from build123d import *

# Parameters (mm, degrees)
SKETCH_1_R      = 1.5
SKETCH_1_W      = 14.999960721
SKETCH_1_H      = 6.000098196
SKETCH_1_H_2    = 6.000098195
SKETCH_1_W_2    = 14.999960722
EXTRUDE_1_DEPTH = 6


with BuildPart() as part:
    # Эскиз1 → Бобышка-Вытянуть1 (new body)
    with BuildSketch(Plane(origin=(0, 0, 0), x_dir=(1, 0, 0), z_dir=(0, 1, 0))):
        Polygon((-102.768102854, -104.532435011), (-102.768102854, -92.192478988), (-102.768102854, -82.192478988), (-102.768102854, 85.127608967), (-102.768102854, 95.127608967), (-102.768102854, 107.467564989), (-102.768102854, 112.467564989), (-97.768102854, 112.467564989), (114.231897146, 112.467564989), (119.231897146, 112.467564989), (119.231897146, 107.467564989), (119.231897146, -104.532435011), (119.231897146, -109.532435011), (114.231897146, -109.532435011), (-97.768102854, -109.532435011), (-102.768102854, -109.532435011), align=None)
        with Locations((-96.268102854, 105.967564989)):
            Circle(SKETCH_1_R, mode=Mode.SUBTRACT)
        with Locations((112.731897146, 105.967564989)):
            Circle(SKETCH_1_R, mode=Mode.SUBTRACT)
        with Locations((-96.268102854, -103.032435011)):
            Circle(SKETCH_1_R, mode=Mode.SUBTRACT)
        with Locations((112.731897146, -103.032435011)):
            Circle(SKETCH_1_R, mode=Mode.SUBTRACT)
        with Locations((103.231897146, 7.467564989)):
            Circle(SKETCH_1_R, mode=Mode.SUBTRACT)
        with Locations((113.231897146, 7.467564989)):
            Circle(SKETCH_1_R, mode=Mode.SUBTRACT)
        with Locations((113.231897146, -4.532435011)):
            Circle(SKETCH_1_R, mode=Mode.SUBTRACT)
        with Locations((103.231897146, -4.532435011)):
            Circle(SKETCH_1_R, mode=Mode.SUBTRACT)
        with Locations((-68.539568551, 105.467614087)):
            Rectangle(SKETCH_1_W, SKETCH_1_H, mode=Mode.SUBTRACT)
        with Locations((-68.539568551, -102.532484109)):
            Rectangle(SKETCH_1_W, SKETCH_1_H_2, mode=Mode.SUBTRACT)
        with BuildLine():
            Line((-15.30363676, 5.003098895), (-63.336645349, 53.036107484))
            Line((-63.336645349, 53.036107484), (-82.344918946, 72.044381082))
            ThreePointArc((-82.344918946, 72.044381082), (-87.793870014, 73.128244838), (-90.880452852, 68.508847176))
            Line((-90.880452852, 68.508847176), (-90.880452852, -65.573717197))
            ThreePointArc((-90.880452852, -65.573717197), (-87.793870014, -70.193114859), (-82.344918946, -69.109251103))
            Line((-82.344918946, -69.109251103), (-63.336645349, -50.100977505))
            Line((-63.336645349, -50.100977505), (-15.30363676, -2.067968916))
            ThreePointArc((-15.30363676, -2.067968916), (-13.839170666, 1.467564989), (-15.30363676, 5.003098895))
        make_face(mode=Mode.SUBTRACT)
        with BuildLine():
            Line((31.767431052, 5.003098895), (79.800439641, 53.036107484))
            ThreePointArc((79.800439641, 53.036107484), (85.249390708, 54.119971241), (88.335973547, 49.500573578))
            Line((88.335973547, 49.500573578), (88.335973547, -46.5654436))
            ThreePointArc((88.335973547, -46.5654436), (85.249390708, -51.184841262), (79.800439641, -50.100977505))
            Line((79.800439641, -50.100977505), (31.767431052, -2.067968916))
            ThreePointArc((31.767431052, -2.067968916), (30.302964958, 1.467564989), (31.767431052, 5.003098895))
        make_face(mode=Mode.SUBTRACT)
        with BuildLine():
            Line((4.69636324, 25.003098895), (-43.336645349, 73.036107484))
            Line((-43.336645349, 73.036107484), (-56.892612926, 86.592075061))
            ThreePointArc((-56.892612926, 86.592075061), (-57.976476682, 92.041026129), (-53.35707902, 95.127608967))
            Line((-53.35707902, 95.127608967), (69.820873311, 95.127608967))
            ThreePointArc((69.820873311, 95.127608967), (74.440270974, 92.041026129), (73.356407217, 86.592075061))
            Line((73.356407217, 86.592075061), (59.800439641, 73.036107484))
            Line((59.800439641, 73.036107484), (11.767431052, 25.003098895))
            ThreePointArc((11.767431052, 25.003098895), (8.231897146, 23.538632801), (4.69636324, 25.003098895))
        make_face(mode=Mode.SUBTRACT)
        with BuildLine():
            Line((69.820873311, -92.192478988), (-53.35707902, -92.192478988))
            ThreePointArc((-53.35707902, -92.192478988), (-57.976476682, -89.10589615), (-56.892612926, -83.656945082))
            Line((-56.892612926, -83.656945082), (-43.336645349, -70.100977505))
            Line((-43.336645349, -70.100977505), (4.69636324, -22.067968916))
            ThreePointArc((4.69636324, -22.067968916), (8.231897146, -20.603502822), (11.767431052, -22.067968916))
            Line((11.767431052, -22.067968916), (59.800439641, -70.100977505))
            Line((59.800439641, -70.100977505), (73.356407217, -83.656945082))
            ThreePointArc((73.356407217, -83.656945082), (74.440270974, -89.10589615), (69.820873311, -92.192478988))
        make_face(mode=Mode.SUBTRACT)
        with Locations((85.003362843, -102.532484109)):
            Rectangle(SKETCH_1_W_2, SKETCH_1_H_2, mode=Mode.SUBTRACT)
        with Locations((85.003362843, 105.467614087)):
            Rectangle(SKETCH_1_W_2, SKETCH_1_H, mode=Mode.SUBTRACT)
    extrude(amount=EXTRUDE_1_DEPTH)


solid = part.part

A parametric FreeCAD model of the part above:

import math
import FreeCAD as App
import Part
import Sketcher
Q = App.Units.Quantity


def add_polygon(sketch, points):
    """Adds a closed chain of lines whose ends are joined by coincident constraints."""
    first, n = sketch.GeometryCount, len(points)
    for a, b in zip(points, points[1:] + points[:1]):
        sketch.addGeometry(Part.LineSegment(App.Vector(*a, 0), App.Vector(*b, 0)), False)
    for i in range(n):
        sketch.addConstraint(Sketcher.Constraint("Coincident", first + i, 2, first + (i + 1) % n, 1))

doc = App.newDocument("Part")
body = doc.addObject("PartDesign::Body", "Body")

# Sketch on XZ plane
sketch1 = doc.addObject("Sketcher::SketchObject", "Sketch")
body.addObject(sketch1)
sketch1.AttachmentSupport = (doc.XZ_Plane, [""])
sketch1.MapMode = "FlatFace"
add_polygon(sketch1, [(-102.8, -112.5), (-102.8, 109.5), (119.2, 109.5), (119.2, -112.5)])  # lines 0-3
sketch1.addGeometry(Part.Circle(App.Vector(112.7, 103, 0), App.Vector(0, 0, 1), 1.5), False)  # 4
add_polygon(sketch1, [(77.5, 105.5), (77.5, 99.5), (92.5, 99.5), (92.5, 105.5)])  # lines 5-8
sketch1.addGeometry(Part.Circle(App.Vector(113.2, 4.5, 0), App.Vector(0, 0, 1), 1.5), False)  # 9
sketch1.addGeometry(Part.Circle(App.Vector(103.2, 4.5, 0), App.Vector(0, 0, 1), 1.5), False)  # 10
sketch1.addGeometry(Part.LineSegment(App.Vector(69.8, 92.2, 0), App.Vector(-53.4, 92.2, 0)), False)  # 11
sketch1.addGeometry(Part.ArcOfCircle(Part.Circle(App.Vector(-53.4, 87.2, 0), App.Vector(0, 0, 1), 5), math.radians(90), math.radians(225)), False)  # 12
sketch1.addGeometry(Part.LineSegment(App.Vector(-56.9, 83.7, 0), App.Vector(4.7, 22.1, 0)), False)  # 13
sketch1.addGeometry(Part.ArcOfCircle(Part.Circle(App.Vector(8.2, 25.6, 0), App.Vector(0, 0, 1), 5), math.radians(-135), math.radians(-45)), False)  # 14
sketch1.addGeometry(Part.LineSegment(App.Vector(11.8, 22.1, 0), App.Vector(59.8, 70.1, 0)), False)  # 15
sketch1.addGeometry(Part.LineSegment(App.Vector(59.8, 70.1, 0), App.Vector(73.4, 83.7, 0)), False)  # 16
sketch1.addGeometry(Part.ArcOfCircle(Part.Circle(App.Vector(69.8, 87.2, 0), App.Vector(0, 0, 1), 5), math.radians(-45), math.radians(90)), False)  # 17
add_polygon(sketch1, [(-76, 105.5), (-76, 99.5), (-61, 99.5), (-61, 105.5)])  # lines 18-21
sketch1.addGeometry(Part.Circle(App.Vector(-96.3, 103, 0), App.Vector(0, 0, 1), 1.5), False)  # 22
sketch1.addGeometry(Part.Circle(App.Vector(113.2, -7.5, 0), App.Vector(0, 0, 1), 1.5), False)  # 23
sketch1.addGeometry(Part.Circle(App.Vector(103.2, -7.5, 0), App.Vector(0, 0, 1), 1.5), False)  # 24
sketch1.addGeometry(Part.LineSegment(App.Vector(31.8, -5, 0), App.Vector(79.8, -53, 0)), False)  # 25
sketch1.addGeometry(Part.ArcOfCircle(Part.Circle(App.Vector(83.3, -49.5, 0), App.Vector(0, 0, 1), 5), math.radians(-135), math.radians(0)), False)  # 26
sketch1.addGeometry(Part.LineSegment(App.Vector(88.3, -49.5, 0), App.Vector(88.3, 46.6, 0)), False)  # 27
sketch1.addGeometry(Part.ArcOfCircle(Part.Circle(App.Vector(83.3, 46.6, 0), App.Vector(0, 0, 1), 5), math.radians(0), math.radians(135)), False)  # 28
sketch1.addGeometry(Part.LineSegment(App.Vector(79.8, 50.1, 0), App.Vector(31.8, 2.1, 0)), False)  # 29
sketch1.addGeometry(Part.ArcOfCircle(Part.Circle(App.Vector(35.3, -1.5, 0), App.Vector(0, 0, 1), 5), math.radians(135), math.radians(225)), False)  # 30
sketch1.addGeometry(Part.Circle(App.Vector(112.7, -106, 0), App.Vector(0, 0, 1), 1.5), False)  # 31
add_polygon(sketch1, [(77.5, -102.5), (77.5, -108.5), (92.5, -108.5), (92.5, -102.5)])  # lines 32-35
sketch1.addGeometry(Part.ArcOfCircle(Part.Circle(App.Vector(-18.8, -1.5, 0), App.Vector(0, 0, 1), 5), math.radians(-45), math.radians(45)), False)  # 36
sketch1.addGeometry(Part.LineSegment(App.Vector(-15.3, 2.1, 0), App.Vector(-63.3, 50.1, 0)), False)  # 37
sketch1.addGeometry(Part.LineSegment(App.Vector(-63.3, 50.1, 0), App.Vector(-82.3, 69.1, 0)), False)  # 38
sketch1.addGeometry(Part.ArcOfCircle(Part.Circle(App.Vector(-85.9, 65.6, 0), App.Vector(0, 0, 1), 5), math.radians(45), math.radians(180)), False)  # 39
sketch1.addGeometry(Part.LineSegment(App.Vector(-90.9, 65.6, 0), App.Vector(-90.9, -68.5, 0)), False)  # 40
sketch1.addGeometry(Part.ArcOfCircle(Part.Circle(App.Vector(-85.9, -68.5, 0), App.Vector(0, 0, 1), 5), math.radians(-180), math.radians(-45)), False)  # 41
sketch1.addGeometry(Part.LineSegment(App.Vector(-82.3, -72, 0), App.Vector(-63.3, -53, 0)), False)  # 42
sketch1.addGeometry(Part.LineSegment(App.Vector(-63.3, -53, 0), App.Vector(-15.3, -5, 0)), False)  # 43
sketch1.addGeometry(Part.LineSegment(App.Vector(4.7, -25, 0), App.Vector(-56.9, -86.6, 0)), False)  # 44
sketch1.addGeometry(Part.ArcOfCircle(Part.Circle(App.Vector(-53.4, -90.1, 0), App.Vector(0, 0, 1), 5), math.radians(135), math.radians(270)), False)  # 45
sketch1.addGeometry(Part.LineSegment(App.Vector(-53.4, -95.1, 0), App.Vector(69.8, -95.1, 0)), False)  # 46
sketch1.addGeometry(Part.ArcOfCircle(Part.Circle(App.Vector(69.8, -90.1, 0), App.Vector(0, 0, 1), 5), math.radians(-90), math.radians(45)), False)  # 47
sketch1.addGeometry(Part.LineSegment(App.Vector(73.4, -86.6, 0), App.Vector(59.8, -73, 0)), False)  # 48
sketch1.addGeometry(Part.LineSegment(App.Vector(59.8, -73, 0), App.Vector(11.8, -25, 0)), False)  # 49
sketch1.addGeometry(Part.ArcOfCircle(Part.Circle(App.Vector(8.2, -28.5, 0), App.Vector(0, 0, 1), 5), math.radians(45), math.radians(135)), False)  # 50
add_polygon(sketch1, [(-76, -102.5), (-76, -108.5), (-61, -108.5), (-61, -102.5)])  # lines 51-54
sketch1.addGeometry(Part.Circle(App.Vector(-96.3, -106, 0), App.Vector(0, 0, 1), 1.5), False)  # 55
sketch1.addConstraint(Sketcher.Constraint("Tangent", 11, 2, 12, 1))
sketch1.addConstraint(Sketcher.Constraint("Tangent", 12, 2, 13, 1))
sketch1.addConstraint(Sketcher.Constraint("Tangent", 13, 2, 14, 1))
sketch1.addConstraint(Sketcher.Constraint("Tangent", 14, 2, 15, 1))
sketch1.addConstraint(Sketcher.Constraint("Coincident", 15, 2, 16, 1))
sketch1.addConstraint(Sketcher.Constraint("Tangent", 16, 2, 17, 1))
sketch1.addConstraint(Sketcher.Constraint("Tangent", 17, 2, 11, 1))
sketch1.addConstraint(Sketcher.Constraint("Tangent", 25, 2, 26, 1))
sketch1.addConstraint(Sketcher.Constraint("Tangent", 26, 2, 27, 1))
sketch1.addConstraint(Sketcher.Constraint("Tangent", 27, 2, 28, 1))
sketch1.addConstraint(Sketcher.Constraint("Tangent", 28, 2, 29, 1))
sketch1.addConstraint(Sketcher.Constraint("Tangent", 29, 2, 30, 1))
sketch1.addConstraint(Sketcher.Constraint("Tangent", 30, 2, 25, 1))
sketch1.addConstraint(Sketcher.Constraint("Tangent", 36, 2, 37, 1))
sketch1.addConstraint(Sketcher.Constraint("Coincident", 37, 2, 38, 1))
sketch1.addConstraint(Sketcher.Constraint("Tangent", 38, 2, 39, 1))
sketch1.addConstraint(Sketcher.Constraint("Tangent", 39, 2, 40, 1))
sketch1.addConstraint(Sketcher.Constraint("Tangent", 40, 2, 41, 1))
sketch1.addConstraint(Sketcher.Constraint("Tangent", 41, 2, 42, 1))
sketch1.addConstraint(Sketcher.Constraint("Coincident", 42, 2, 43, 1))
sketch1.addConstraint(Sketcher.Constraint("Tangent", 43, 2, 36, 1))
sketch1.addConstraint(Sketcher.Constraint("Tangent", 44, 2, 45, 1))
sketch1.addConstraint(Sketcher.Constraint("Tangent", 45, 2, 46, 1))
sketch1.addConstraint(Sketcher.Constraint("Tangent", 46, 2, 47, 1))
sketch1.addConstraint(Sketcher.Constraint("Tangent", 47, 2, 48, 1))
sketch1.addConstraint(Sketcher.Constraint("Coincident", 48, 2, 49, 1))
sketch1.addConstraint(Sketcher.Constraint("Tangent", 49, 2, 50, 1))
sketch1.addConstraint(Sketcher.Constraint("Tangent", 50, 2, 44, 1))
sketch1.addConstraint(Sketcher.Constraint("Vertical", 0))
sketch1.addConstraint(Sketcher.Constraint("Horizontal", 1))
sketch1.addConstraint(Sketcher.Constraint("Vertical", 2))
sketch1.addConstraint(Sketcher.Constraint("Horizontal", 3))
sketch1.addConstraint(Sketcher.Constraint("Vertical", 5))
sketch1.addConstraint(Sketcher.Constraint("Horizontal", 6))
sketch1.addConstraint(Sketcher.Constraint("Vertical", 7))
sketch1.addConstraint(Sketcher.Constraint("Horizontal", 8))
sketch1.addConstraint(Sketcher.Constraint("Horizontal", 11))
sketch1.addConstraint(Sketcher.Constraint("Vertical", 18))
sketch1.addConstraint(Sketcher.Constraint("Horizontal", 19))
sketch1.addConstraint(Sketcher.Constraint("Vertical", 20))
sketch1.addConstraint(Sketcher.Constraint("Horizontal", 21))
sketch1.addConstraint(Sketcher.Constraint("Vertical", 27))
sketch1.addConstraint(Sketcher.Constraint("Vertical", 32))
sketch1.addConstraint(Sketcher.Constraint("Horizontal", 33))
sketch1.addConstraint(Sketcher.Constraint("Vertical", 34))
sketch1.addConstraint(Sketcher.Constraint("Horizontal", 35))
sketch1.addConstraint(Sketcher.Constraint("Vertical", 40))
sketch1.addConstraint(Sketcher.Constraint("Horizontal", 46))
sketch1.addConstraint(Sketcher.Constraint("Vertical", 51))
sketch1.addConstraint(Sketcher.Constraint("Horizontal", 52))
sketch1.addConstraint(Sketcher.Constraint("Vertical", 53))
sketch1.addConstraint(Sketcher.Constraint("Horizontal", 54))
sketch1.addConstraint(Sketcher.Constraint("Equal", 4, 9))
sketch1.addConstraint(Sketcher.Constraint("Equal", 9, 10))
sketch1.addConstraint(Sketcher.Constraint("Equal", 12, 14))
sketch1.addConstraint(Sketcher.Constraint("Equal", 14, 17))
sketch1.addConstraint(Sketcher.Constraint("Equal", 10, 22))
sketch1.addConstraint(Sketcher.Constraint("Equal", 22, 23))
sketch1.addConstraint(Sketcher.Constraint("Equal", 23, 24))
sketch1.addConstraint(Sketcher.Constraint("Equal", 17, 26))
sketch1.addConstraint(Sketcher.Constraint("Equal", 26, 28))
sketch1.addConstraint(Sketcher.Constraint("Equal", 28, 30))
sketch1.addConstraint(Sketcher.Constraint("Equal", 24, 31))
sketch1.addConstraint(Sketcher.Constraint("Equal", 30, 36))
sketch1.addConstraint(Sketcher.Constraint("Equal", 36, 39))
sketch1.addConstraint(Sketcher.Constraint("Equal", 39, 41))
sketch1.addConstraint(Sketcher.Constraint("Equal", 41, 45))
sketch1.addConstraint(Sketcher.Constraint("Equal", 45, 47))
sketch1.addConstraint(Sketcher.Constraint("Equal", 47, 50))
sketch1.addConstraint(Sketcher.Constraint("Equal", 31, 55))
sketch1.addConstraint(Sketcher.Constraint("Perpendicular", 13, 15))
sketch1.addConstraint(Sketcher.Constraint("Parallel", 15, 16))
sketch1.addConstraint(Sketcher.Constraint("Perpendicular", 16, 25))
sketch1.addConstraint(Sketcher.Constraint("Perpendicular", 25, 29))
sketch1.addConstraint(Sketcher.Constraint("Perpendicular", 29, 37))
sketch1.addConstraint(Sketcher.Constraint("Parallel", 37, 38))
sketch1.addConstraint(Sketcher.Constraint("Perpendicular", 38, 42))
sketch1.addConstraint(Sketcher.Constraint("Parallel", 42, 43))
sketch1.addConstraint(Sketcher.Constraint("Parallel", 43, 44))
sketch1.addConstraint(Sketcher.Constraint("Perpendicular", 44, 48))
sketch1.addConstraint(Sketcher.Constraint("Parallel", 48, 49))
sketch1.addConstraint(Sketcher.Constraint("Horizontal", 9, 3, 10, 3))
sketch1.addConstraint(Sketcher.Constraint("Horizontal", 4, 3, 22, 3))
sketch1.addConstraint(Sketcher.Constraint("Horizontal", 23, 3, 24, 3))
sketch1.addConstraint(Sketcher.Constraint("Horizontal", 30, 3, 36, 3))
sketch1.addConstraint(Sketcher.Constraint("Horizontal", 31, 3, 55, 3))
sketch1.addConstraint(Sketcher.Constraint("Horizontal", 13, 2, 14, 2))
sketch1.addConstraint(Sketcher.Constraint("Horizontal", 6, 2, 18, 2))
sketch1.addConstraint(Sketcher.Constraint("Horizontal", 8, 2, 20, 2))
sketch1.addConstraint(Sketcher.Constraint("Horizontal", 28, 2, 37, 2))
sketch1.addConstraint(Sketcher.Constraint("Horizontal", 25, 2, 42, 2))
sketch1.addConstraint(Sketcher.Constraint("Horizontal", 33, 2, 51, 2))
sketch1.addConstraint(Sketcher.Constraint("Horizontal", 35, 2, 53, 2))
sketch1.addConstraint(Sketcher.Constraint("Vertical", 9, 3, 23, 3))
sketch1.addConstraint(Sketcher.Constraint("Vertical", 10, 3, 24, 3))
sketch1.addConstraint(Sketcher.Constraint("Vertical", 4, 3, 31, 3))
sketch1.addConstraint(Sketcher.Constraint("Vertical", 12, 3, 45, 3))
sketch1.addConstraint(Sketcher.Constraint("Vertical", 17, 3, 47, 3))
sketch1.addConstraint(Sketcher.Constraint("Vertical", 22, 3, 55, 3))
sketch1.addConstraint(Sketcher.Constraint("Vertical", 8, 2, 32, 2))
sketch1.addConstraint(Sketcher.Constraint("Vertical", 7, 2, 33, 2))
sketch1.addConstraint(Sketcher.Constraint("Vertical", 15, 2, 48, 2))
sketch1.addConstraint(Sketcher.Constraint("Vertical", 21, 2, 51, 2))
sketch1.addConstraint(Sketcher.Constraint("Vertical", 20, 2, 52, 2))
sketch1.addConstraint(Sketcher.Constraint("Equal", 8, 19))
sketch1.addConstraint(Sketcher.Constraint("Equal", 3, 0))
sketch1.addConstraint(Sketcher.Constraint("Equal", 20, 32))
sketch1.addConstraint(Sketcher.Constraint("Equal", 15, 25))
sketch1.addConstraint(Sketcher.Constraint("Diameter", 4, Q("3 mm")))
sketch1.addConstraint(Sketcher.Constraint("Radius", 12, Q("5 mm")))
sketch1.addConstraint(Sketcher.Constraint("DistanceX", 1, 1, 1, 2, Q("222 mm")))
sketch1.addConstraint(Sketcher.Constraint("DistanceY", 5, 2, 5, 1, Q("6.000098 mm")))
sketch1.addConstraint(Sketcher.Constraint("DistanceX", 6, 1, 6, 2, Q("14.999961 mm")))
sketch1.addConstraint(Sketcher.Constraint("DistanceY", 30, 2, -1, 1, Q("5.003099 mm")))
sketch1.addConstraint(Sketcher.Constraint("DistanceY", 49, 2, -1, 1, Q("25.003099 mm")))
sketch1.addConstraint(Sketcher.Constraint("Distance", 38, Q("26.881758 mm")))
sketch1.addConstraint(Sketcher.Constraint("DistanceX", 11, 2, 11, 1, Q("123.177952 mm")))
sketch1.addConstraint(Sketcher.Constraint("DistanceY", 27, 1, 27, 2, Q("96.066017 mm")))
sketch1.addConstraint(Sketcher.Constraint("DistanceX", 12, 3, -1, 1, Q("53.357079 mm")))
sketch1.addConstraint(Sketcher.Constraint("DistanceY", -1, 1, 12, 3, Q("87.192479 mm")))
sketch1.addConstraint(Sketcher.Constraint("DistanceX", 36, 3, -1, 1, Q("18.839171 mm")))
sketch1.addConstraint(Sketcher.Constraint("DistanceX", 18, 2, -1, 1, Q("76.039549 mm")))
sketch1.addConstraint(Sketcher.Constraint("DistanceX", -1, 1, 25, 2, Q("79.80044 mm")))
sketch1.addConstraint(Sketcher.Constraint("DistanceX", -1, 1, 4, 3, Q("112.731897 mm")))
sketch1.addConstraint(Sketcher.Constraint("DistanceY", -1, 1, 4, 3, Q("103.032435 mm")))
sketch1.addConstraint(Sketcher.Constraint("DistanceX", -1, 1, 9, 3, Q("113.231897 mm")))
sketch1.addConstraint(Sketcher.Constraint("DistanceY", -1, 1, 9, 3, Q("4.532435 mm")))
sketch1.addConstraint(Sketcher.Constraint("DistanceX", -1, 1, 10, 3, Q("103.231897 mm")))
sketch1.addConstraint(Sketcher.Constraint("DistanceX", 22, 3, -1, 1, Q("96.268103 mm")))
sketch1.addConstraint(Sketcher.Constraint("DistanceY", 23, 3, -1, 1, Q("7.467565 mm")))
sketch1.addConstraint(Sketcher.Constraint("DistanceY", 31, 3, -1, 1, Q("105.967565 mm")))
sketch1.addConstraint(Sketcher.Constraint("DistanceX", 0, 2, -1, 1, Q("102.768103 mm")))
sketch1.addConstraint(Sketcher.Constraint("DistanceY", -1, 1, 0, 2, Q("109.532435 mm")))
sketch1.addConstraint(Sketcher.Constraint("DistanceX", -1, 1, 5, 2, Q("77.503382 mm")))
sketch1.addConstraint(Sketcher.Constraint("DistanceY", -1, 1, 5, 2, Q("99.532435 mm")))
sketch1.addConstraint(Sketcher.Constraint("DistanceY", 32, 2, -1, 1, Q("108.467663 mm")))
pad1 = doc.addObject("PartDesign::Pad", "Pad")
body.addObject(pad1)
pad1.Profile = sketch1
pad1.Length = 6
pad1.Reversed = True

doc.recompute()
